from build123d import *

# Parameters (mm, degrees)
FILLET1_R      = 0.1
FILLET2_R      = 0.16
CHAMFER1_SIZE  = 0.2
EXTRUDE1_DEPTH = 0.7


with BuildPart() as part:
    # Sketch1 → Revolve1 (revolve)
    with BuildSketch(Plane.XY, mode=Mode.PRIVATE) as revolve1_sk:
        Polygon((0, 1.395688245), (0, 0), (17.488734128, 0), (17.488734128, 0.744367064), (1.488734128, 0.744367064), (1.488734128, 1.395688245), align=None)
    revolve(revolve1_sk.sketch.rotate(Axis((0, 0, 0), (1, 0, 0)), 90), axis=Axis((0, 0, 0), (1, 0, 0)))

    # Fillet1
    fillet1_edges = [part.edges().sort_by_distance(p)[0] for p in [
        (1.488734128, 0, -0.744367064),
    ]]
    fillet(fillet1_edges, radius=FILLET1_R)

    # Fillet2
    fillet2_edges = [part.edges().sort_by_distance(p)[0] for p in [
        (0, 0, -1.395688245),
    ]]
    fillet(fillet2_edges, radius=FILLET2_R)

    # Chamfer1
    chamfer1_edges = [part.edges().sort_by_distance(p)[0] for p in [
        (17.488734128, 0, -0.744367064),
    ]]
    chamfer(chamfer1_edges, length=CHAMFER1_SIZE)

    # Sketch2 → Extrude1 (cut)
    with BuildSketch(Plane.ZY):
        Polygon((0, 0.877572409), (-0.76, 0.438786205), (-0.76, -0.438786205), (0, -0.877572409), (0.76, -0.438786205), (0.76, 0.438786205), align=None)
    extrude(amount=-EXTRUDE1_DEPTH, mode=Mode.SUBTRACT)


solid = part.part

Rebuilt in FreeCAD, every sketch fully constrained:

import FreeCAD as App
import Part
import Sketcher
Q = App.Units.Quantity


def edges_at(feature, points):
    """Names of the edges that pass closest to the given points."""
    edges = feature.Shape.Edges
    near = lambda p: min(range(len(edges)), key=lambda i: edges[i].distToShape(Part.Vertex(*p))[0])
    return sorted({f"Edge{near(p) + 1}" for p in points})

doc = App.newDocument("Part")
body = doc.addObject("PartDesign::Body", "Body")

# Sketch on XY plane
sketch1 = body.newObject("Sketcher::SketchObject", "Sketch")
sketch1.AttachmentSupport = (doc.getObject("XY_Plane"), [""])
sketch1.MapMode = "FlatFace"
sketch1.addGeometry(Part.LineSegment(App.Vector(0, 1.4, 0), App.Vector(0, 0, 0)), False)
sketch1.addGeometry(Part.LineSegment(App.Vector(0, 0, 0), App.Vector(17.5, 0, 0)), False)
sketch1.addGeometry(Part.LineSegment(App.Vector(17.5, 0, 0), App.Vector(17.5, 0.7, 0)), False)
sketch1.addGeometry(Part.LineSegment(App.Vector(17.5, 0.7, 0), App.Vector(1.5, 0.7, 0)), False)
sketch1.addGeometry(Part.LineSegment(App.Vector(1.5, 0.7, 0), App.Vector(1.5, 1.4, 0)), False)
sketch1.addGeometry(Part.LineSegment(App.Vector(1.5, 1.4, 0), App.Vector(0, 1.4, 0)), False)
sketch1.addConstraint(Sketcher.Constraint("Coincident", 0, 2, 1, 1))
sketch1.addConstraint(Sketcher.Constraint("Coincident", 1, 2, 2, 1))
sketch1.addConstraint(Sketcher.Constraint("Coincident", 2, 2, 3, 1))
sketch1.addConstraint(Sketcher.Constraint("Coincident", 3, 2, 4, 1))
sketch1.addConstraint(Sketcher.Constraint("Coincident", 4, 2, 5, 1))
sketch1.addConstraint(Sketcher.Constraint("Coincident", 5, 2, 0, 1))
sketch1.addConstraint(Sketcher.Constraint("Vertical", 0))
sketch1.addConstraint(Sketcher.Constraint("Horizontal", 1))
sketch1.addConstraint(Sketcher.Constraint("Vertical", 2))
sketch1.addConstraint(Sketcher.Constraint("Horizontal", 3))
sketch1.addConstraint(Sketcher.Constraint("Vertical", 4))
sketch1.addConstraint(Sketcher.Constraint("Horizontal", 5))
sketch1.addConstraint(Sketcher.Constraint("Coincident", 0, 2, -1, 1))
sketch1.addConstraint(Sketcher.Constraint("DistanceX", 3, 2, 3, 1, Q("16 mm")))
sketch1.addConstraint(Sketcher.Constraint("DistanceY", 0, 2, 0, 1, Q("1.395688 mm")))
sketch1.addConstraint(Sketcher.Constraint("DistanceY", 4, 1, 4, 2, Q("0.651321 mm")))
sketch1.addConstraint(Sketcher.Constraint("DistanceX", 1, 1, 1, 2, Q("17.488734 mm")))
revolution = body.newObject("PartDesign::Revolution", "Revolution")
revolution.Profile = sketch1
revolution.ReferenceAxis = (sketch1, ["H_Axis"])
revolution.Angle = 360
doc.recompute()

fillet = body.newObject("PartDesign::Fillet", "Fillet")
fillet.Base = (revolution, edges_at(revolution, [(1.489, 0, -0.744)]))
fillet.Radius = 0.1
doc.recompute()

fillet2 = body.newObject("PartDesign::Fillet", "Fillet001")
fillet2.Base = (fillet, edges_at(fillet, [(0, 0, -1.396)]))
fillet2.Radius = 0.16
doc.recompute()

chamfer = body.newObject("PartDesign::Chamfer", "Chamfer")
chamfer.Base = (fillet2, edges_at(fillet2, [(17.489, 0, -0.744)]))
chamfer.Size = 0.2

# Sketch on YZ plane
sketch2 = body.newObject("Sketcher::SketchObject", "Sketch001")
sketch2.AttachmentSupport = (doc.getObject("YZ_Plane"), [""])
sketch2.MapMode = "FlatFace"
sketch2.addGeometry(Part.LineSegment(App.Vector(0.9, 0, 0), App.Vector(0.4, -0.8, 0)), False)
sketch2.addGeometry(Part.LineSegment(App.Vector(0.4, -0.8, 0), App.Vector(-0.4, -0.8, 0)), False)
sketch2.addGeometry(Part.LineSegment(App.Vector(-0.4, -0.8, 0), App.Vector(-0.9, 0, 0)), False)
sketch2.addGeometry(Part.LineSegment(App.Vector(-0.9, 0, 0), App.Vector(-0.4, 0.8, 0)), False)
sketch2.addGeometry(Part.LineSegment(App.Vector(-0.4, 0.8, 0), App.Vector(0.4, 0.8, 0)), False)
sketch2.addGeometry(Part.LineSegment(App.Vector(0.4, 0.8, 0), App.Vector(0.9, 0, 0)), False)
sketch2.addConstraint(Sketcher.Constraint("Coincident", 0, 2, 1, 1))
sketch2.addConstraint(Sketcher.Constraint("Coincident", 1, 2, 2, 1))
sketch2.addConstraint(Sketcher.Constraint("Coincident", 2, 2, 3, 1))
sketch2.addConstraint(Sketcher.Constraint("Coincident", 3, 2, 4, 1))
sketch2.addConstraint(Sketcher.Constraint("Coincident", 4, 2, 5, 1))
sketch2.addConstraint(Sketcher.Constraint("Coincident", 5, 2, 0, 1))
sketch2.addConstraint(Sketcher.Constraint("Horizontal", 1))
sketch2.addConstraint(Sketcher.Constraint("Horizontal", 4))
sketch2.addConstraint(Sketcher.Constraint("Symmetric", 0, 2, 3, 2, -1, 1))
sketch2.addConstraint(Sketcher.Constraint("Symmetric", 2, 2, 5, 2, -1, 1))
sketch2.addConstraint(Sketcher.Constraint("PointOnObject", 2, 2, -1))
sketch2.addConstraint(Sketcher.Constraint("Parallel", 2, 5))
sketch2.addConstraint(Sketcher.Constraint("Vertical", 1, 2, 3, 2))
sketch2.addConstraint(Sketcher.Constraint("Angle", 0, Q("-120 deg")))
sketch2.addConstraint(Sketcher.Constraint("DistanceY", 0, 2, -1, 1, Q("0.76 mm")))
sketch2.addConstraint(Sketcher.Constraint("DistanceX", 1, 2, 1, 1, Q("0.877572 mm")))
pocket1 = body.newObject("PartDesign::Pocket", "Pocket")
pocket1.Profile = sketch2
pocket1.Length = 0.7
pocket1.Reversed = True

doc.recompute()
